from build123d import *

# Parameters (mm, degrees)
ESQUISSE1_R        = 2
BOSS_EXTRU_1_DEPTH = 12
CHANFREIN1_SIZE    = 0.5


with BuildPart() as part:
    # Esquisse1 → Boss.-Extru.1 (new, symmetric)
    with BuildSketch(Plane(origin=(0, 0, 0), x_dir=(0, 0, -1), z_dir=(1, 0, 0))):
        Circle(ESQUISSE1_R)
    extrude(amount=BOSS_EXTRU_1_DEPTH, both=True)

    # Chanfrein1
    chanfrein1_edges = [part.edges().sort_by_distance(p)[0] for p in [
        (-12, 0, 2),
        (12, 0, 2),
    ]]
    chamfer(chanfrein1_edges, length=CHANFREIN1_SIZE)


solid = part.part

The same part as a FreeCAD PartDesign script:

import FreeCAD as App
import Part
import Sketcher

V = App.Vector


def edges_at(feature, points):
    """Names of the edges that pass closest to the given points."""
    edges = feature.Shape.Edges
    near = lambda p: min(range(len(edges)), key=lambda i: edges[i].distToShape(Part.Vertex(*p))[0])
    return sorted({f"Edge{near(p) + 1}" for p in points})

doc = App.newDocument("Part")
body = doc.addObject("PartDesign::Body", "Body")

sketch1 = body.newObject("Sketcher::SketchObject", "Sketch")
sketch1.AttachmentSupport = (doc.getObject("YZ_Plane"), [""])
sketch1.MapMode = "FlatFace"
sketch1.addGeometry(Part.Circle(V(0, 0, 0), V(0, 0, 1), 2), False)
sketch1.addConstraint(Sketcher.Constraint("Coincident", 0, 3, -1, 1))
sketch1.addConstraint(Sketcher.Constraint("Diameter", 0, 4.0))
pad1 = body.newObject("PartDesign::Pad", "Pad")
pad1.Profile = sketch1
pad1.Length = 24
pad1.Midplane = True
doc.recompute()

chamfer = body.newObject("PartDesign::Chamfer", "Chamfer")
chamfer.Base = (pad1, edges_at(pad1, [(-12, 0, 2), (12, 0, 2)]))
chamfer.Size = 0.5

doc.recompute()
